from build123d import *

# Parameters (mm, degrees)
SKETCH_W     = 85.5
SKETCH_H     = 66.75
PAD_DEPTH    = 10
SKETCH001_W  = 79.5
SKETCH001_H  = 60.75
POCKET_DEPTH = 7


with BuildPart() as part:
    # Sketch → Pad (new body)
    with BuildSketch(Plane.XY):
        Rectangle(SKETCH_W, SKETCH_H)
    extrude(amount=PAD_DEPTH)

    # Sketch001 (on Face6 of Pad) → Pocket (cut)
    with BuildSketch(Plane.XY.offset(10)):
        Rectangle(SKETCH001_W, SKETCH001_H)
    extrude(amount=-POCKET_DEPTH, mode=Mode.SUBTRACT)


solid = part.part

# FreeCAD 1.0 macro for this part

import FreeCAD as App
import Part
import Sketcher
from FreeCAD import Vector
Q = App.Units.Quantity

doc = App.newDocument("Part")
body = doc.addObject("PartDesign::Body", "Body")

# Sketch on XY plane
sketch1 = doc.addObject("Sketcher::SketchObject", "Sketch")
body.addObject(sketch1)
sketch1.AttachmentSupport = (doc.XY_Plane, [""])
sketch1.MapMode = "FlatFace"
sketch1.addGeometry([
    Part.LineSegment(Vector(-43, 33, 0), Vector(-43, -33, 0)),
    Part.LineSegment(Vector(-43, -33, 0), Vector(43, -33, 0)),
    Part.LineSegment(Vector(43, -33, 0), Vector(43, 33, 0)),
    Part.LineSegment(Vector(43, 33, 0), Vector(-43, 33, 0)),
], False)
sketch1.addConstraint([
    Sketcher.Constraint("Coincident", 0, 2, 1, 1),
    Sketcher.Constraint("Coincident", 1, 2, 2, 1),
    Sketcher.Constraint("Coincident", 2, 2, 3, 1),
    Sketcher.Constraint("Coincident", 3, 2, 0, 1),
    Sketcher.Constraint("Vertical", 0),
    Sketcher.Constraint("Horizontal", 1),
    Sketcher.Constraint("Vertical", 2),
    Sketcher.Constraint("Horizontal", 3),
    Sketcher.Constraint("Symmetric", 0, 2, 2, 2, -1, 1),
    Sketcher.Constraint("DistanceX", 1, 1, 1, 2, Q("85.5 mm")),
    Sketcher.Constraint("DistanceY", 0, 2, 0, 1, Q("66.75 mm")),
])
pad1 = doc.addObject("PartDesign::Pad", "Pad")
body.addObject(pad1)
pad1.Profile = sketch1
pad1.Length = 10

# Sketch on XY plane
sketch2 = doc.addObject("Sketcher::SketchObject", "Sketch001")
body.addObject(sketch2)
sketch2.AttachmentSupport = (doc.XY_Plane, [""])
sketch2.MapMode = "FlatFace"
sketch2.AttachmentOffset = App.Placement(Vector(0, 0, 10), App.Rotation())
sketch2.addGeometry([
    Part.LineSegment(Vector(-40, 30, 0), Vector(-40, -30, 0)),
    Part.LineSegment(Vector(-40, -30, 0), Vector(40, -30, 0)),
    Part.LineSegment(Vector(40, -30, 0), Vector(40, 30, 0)),
    Part.LineSegment(Vector(40, 30, 0), Vector(-40, 30, 0)),
], False)
sketch2.addConstraint([
    Sketcher.Constraint("Coincident", 0, 2, 1, 1),
    Sketcher.Constraint("Coincident", 1, 2, 2, 1),
    Sketcher.Constraint("Coincident", 2, 2, 3, 1),
    Sketcher.Constraint("Coincident", 3, 2, 0, 1),
    Sketcher.Constraint("Vertical", 0),
    Sketcher.Constraint("Horizontal", 1),
    Sketcher.Constraint("Vertical", 2),
    Sketcher.Constraint("Horizontal", 3),
    Sketcher.Constraint("Symmetric", 0, 2, 2, 2, -1, 1),
    Sketcher.Constraint("DistanceX", 1, 1, 1, 2, Q("79.5 mm")),
    Sketcher.Constraint("DistanceY", 0, 2, 0, 1, Q("60.75 mm")),
])
pocket1 = doc.addObject("PartDesign::Pocket", "Pocket")
body.addObject(pocket1)
pocket1.Profile = sketch2
pocket1.Length = 7

doc.recompute()
